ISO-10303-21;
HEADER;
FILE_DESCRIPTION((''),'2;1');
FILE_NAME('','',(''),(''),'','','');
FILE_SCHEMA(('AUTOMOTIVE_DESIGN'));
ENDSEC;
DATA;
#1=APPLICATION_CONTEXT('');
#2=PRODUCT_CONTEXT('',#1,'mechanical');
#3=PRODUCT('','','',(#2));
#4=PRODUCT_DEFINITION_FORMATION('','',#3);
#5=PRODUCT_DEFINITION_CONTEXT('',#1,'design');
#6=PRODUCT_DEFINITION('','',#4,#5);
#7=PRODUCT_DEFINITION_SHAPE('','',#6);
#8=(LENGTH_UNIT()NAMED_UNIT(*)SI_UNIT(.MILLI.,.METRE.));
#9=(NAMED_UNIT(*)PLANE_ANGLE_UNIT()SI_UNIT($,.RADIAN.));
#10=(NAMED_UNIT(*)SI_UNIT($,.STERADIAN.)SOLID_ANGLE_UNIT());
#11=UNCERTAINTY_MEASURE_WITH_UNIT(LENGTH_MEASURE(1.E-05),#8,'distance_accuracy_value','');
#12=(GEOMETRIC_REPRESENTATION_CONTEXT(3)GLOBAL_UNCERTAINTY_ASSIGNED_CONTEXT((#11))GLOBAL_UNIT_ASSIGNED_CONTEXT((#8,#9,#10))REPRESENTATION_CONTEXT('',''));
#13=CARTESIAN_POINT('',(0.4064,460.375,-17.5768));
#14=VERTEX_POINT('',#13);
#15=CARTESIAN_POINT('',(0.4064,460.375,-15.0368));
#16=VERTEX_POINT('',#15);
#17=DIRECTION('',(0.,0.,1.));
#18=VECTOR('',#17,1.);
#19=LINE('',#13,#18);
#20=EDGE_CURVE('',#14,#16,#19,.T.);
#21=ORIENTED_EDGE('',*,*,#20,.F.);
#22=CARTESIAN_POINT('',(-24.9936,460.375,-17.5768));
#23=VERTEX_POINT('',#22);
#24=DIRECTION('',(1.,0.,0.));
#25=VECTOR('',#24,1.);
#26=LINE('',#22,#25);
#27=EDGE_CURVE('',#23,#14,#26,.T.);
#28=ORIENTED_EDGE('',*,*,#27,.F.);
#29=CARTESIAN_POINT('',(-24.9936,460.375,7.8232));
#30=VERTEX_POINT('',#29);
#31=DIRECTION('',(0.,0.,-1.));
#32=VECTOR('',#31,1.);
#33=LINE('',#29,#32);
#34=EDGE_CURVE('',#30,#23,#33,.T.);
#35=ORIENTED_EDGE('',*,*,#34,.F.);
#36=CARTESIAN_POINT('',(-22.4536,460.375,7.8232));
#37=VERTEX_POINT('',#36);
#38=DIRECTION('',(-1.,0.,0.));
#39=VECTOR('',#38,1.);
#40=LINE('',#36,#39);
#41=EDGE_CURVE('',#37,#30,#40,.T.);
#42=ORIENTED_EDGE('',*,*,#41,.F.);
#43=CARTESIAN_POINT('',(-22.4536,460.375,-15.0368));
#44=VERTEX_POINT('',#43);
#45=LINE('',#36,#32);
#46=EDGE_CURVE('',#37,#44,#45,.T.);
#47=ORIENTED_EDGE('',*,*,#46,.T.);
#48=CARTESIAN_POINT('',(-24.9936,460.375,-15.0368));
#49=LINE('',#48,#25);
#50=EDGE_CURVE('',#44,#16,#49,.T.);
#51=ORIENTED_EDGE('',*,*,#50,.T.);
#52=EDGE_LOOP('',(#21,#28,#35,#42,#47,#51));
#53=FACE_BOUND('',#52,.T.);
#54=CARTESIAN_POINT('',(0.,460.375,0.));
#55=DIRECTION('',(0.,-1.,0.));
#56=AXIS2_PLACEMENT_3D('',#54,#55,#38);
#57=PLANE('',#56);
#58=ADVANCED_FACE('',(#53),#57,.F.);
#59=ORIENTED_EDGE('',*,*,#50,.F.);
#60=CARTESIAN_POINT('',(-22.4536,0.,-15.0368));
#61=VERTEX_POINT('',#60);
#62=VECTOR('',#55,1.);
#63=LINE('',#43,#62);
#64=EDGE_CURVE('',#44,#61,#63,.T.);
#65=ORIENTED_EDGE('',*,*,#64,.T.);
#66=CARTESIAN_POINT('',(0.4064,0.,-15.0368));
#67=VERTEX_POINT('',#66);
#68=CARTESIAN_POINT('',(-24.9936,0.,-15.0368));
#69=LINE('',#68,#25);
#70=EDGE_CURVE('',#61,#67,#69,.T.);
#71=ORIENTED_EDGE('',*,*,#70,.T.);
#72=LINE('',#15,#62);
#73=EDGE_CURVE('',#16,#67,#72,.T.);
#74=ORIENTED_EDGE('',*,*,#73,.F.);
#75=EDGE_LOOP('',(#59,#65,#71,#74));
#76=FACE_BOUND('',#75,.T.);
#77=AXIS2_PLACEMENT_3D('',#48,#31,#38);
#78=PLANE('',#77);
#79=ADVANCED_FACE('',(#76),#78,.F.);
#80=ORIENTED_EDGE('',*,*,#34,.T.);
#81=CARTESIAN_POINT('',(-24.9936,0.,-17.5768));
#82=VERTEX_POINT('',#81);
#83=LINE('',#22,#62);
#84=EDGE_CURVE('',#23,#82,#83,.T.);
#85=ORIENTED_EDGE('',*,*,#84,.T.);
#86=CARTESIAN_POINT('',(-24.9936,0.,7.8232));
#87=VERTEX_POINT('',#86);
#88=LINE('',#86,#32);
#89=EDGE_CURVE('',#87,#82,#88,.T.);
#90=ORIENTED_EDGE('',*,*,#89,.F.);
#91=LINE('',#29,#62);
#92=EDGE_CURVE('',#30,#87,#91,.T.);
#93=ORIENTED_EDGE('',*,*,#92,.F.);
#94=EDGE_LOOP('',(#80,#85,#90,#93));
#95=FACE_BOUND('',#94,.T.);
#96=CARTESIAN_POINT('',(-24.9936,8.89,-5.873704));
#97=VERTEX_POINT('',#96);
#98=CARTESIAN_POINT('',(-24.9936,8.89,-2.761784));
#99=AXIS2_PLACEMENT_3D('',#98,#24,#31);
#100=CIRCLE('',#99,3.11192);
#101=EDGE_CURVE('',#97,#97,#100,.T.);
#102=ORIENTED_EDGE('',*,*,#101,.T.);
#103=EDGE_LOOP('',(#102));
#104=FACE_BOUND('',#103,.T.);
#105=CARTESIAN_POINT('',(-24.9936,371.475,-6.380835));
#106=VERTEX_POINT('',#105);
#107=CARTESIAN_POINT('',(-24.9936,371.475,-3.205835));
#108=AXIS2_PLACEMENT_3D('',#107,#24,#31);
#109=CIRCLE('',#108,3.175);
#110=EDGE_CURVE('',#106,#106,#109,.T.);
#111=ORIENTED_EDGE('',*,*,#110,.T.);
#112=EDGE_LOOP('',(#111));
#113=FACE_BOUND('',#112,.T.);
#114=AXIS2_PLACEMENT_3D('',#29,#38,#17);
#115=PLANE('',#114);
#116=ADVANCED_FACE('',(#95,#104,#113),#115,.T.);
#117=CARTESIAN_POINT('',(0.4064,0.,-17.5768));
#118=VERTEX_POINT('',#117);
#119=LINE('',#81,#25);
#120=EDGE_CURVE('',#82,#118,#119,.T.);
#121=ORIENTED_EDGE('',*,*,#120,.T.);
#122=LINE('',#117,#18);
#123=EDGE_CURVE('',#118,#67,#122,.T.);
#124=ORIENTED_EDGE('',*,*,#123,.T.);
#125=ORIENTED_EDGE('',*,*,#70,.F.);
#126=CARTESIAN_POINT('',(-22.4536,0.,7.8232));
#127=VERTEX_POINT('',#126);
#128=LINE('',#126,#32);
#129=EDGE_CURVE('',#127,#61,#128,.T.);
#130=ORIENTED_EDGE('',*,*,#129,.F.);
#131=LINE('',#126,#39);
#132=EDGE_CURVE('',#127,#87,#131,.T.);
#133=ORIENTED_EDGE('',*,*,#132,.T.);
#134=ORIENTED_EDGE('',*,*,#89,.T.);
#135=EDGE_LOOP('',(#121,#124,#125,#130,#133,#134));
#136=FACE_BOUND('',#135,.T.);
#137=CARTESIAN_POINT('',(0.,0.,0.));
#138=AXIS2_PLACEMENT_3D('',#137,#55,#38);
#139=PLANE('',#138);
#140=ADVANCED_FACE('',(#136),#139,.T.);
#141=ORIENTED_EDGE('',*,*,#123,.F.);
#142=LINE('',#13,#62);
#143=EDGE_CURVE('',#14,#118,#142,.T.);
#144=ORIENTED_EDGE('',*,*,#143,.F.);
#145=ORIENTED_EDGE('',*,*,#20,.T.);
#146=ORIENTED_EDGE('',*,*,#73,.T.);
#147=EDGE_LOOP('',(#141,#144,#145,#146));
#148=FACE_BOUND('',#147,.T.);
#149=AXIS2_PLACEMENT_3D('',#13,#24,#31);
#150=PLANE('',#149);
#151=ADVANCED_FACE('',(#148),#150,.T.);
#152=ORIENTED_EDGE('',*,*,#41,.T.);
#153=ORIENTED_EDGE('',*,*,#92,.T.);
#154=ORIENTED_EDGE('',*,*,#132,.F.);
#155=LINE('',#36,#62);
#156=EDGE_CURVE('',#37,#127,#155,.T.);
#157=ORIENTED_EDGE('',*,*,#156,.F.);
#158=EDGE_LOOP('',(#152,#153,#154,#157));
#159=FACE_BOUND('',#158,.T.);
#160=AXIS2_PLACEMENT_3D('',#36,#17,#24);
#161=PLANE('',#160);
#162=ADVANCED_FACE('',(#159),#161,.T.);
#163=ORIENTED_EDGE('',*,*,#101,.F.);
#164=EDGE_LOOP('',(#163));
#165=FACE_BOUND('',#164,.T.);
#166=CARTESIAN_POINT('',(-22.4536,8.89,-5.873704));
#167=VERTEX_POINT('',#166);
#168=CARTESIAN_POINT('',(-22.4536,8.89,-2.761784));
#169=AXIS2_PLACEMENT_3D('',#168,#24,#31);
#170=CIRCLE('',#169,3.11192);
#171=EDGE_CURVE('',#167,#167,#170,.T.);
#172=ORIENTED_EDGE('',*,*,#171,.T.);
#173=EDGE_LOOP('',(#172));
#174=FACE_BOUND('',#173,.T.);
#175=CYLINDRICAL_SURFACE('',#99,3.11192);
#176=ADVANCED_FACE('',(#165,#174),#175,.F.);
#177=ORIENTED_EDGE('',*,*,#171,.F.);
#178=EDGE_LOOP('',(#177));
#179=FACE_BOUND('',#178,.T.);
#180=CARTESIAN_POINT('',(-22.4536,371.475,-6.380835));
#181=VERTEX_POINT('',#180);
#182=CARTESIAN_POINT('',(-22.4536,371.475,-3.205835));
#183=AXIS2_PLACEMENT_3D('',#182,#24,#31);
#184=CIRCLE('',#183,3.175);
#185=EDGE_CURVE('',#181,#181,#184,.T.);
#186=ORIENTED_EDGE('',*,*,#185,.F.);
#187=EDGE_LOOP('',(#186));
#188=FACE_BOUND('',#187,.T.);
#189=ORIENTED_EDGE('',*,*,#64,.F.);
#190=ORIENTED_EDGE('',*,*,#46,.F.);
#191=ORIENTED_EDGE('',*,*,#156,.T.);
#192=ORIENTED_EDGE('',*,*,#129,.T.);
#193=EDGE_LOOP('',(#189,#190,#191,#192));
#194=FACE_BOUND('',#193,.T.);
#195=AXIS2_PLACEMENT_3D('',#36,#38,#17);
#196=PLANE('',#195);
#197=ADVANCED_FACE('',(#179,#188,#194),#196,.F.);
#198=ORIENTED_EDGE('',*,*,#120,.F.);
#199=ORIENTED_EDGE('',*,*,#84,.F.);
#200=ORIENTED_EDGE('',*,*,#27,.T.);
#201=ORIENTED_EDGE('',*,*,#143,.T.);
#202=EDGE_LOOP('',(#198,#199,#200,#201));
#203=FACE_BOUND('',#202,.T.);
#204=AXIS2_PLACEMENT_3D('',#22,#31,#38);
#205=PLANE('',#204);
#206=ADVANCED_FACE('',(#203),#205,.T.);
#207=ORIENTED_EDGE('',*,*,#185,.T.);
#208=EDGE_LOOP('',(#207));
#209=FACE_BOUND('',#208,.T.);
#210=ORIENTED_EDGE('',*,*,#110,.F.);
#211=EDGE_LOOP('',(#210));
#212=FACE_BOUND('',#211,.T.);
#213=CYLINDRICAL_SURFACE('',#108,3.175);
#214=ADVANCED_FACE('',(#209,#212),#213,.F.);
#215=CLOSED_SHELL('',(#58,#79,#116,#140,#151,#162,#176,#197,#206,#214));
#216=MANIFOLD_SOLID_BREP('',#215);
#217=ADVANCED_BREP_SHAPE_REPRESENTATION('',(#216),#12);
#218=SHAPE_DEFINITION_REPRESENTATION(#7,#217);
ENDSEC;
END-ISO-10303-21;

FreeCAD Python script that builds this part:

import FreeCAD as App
import Part
import Sketcher

V = App.Vector
Q = App.Units.Quantity


def add_polygon(sketch, points):
    """Adds a closed chain of lines whose ends are joined by coincident constraints."""
    first, n = sketch.GeometryCount, len(points)
    for a, b in zip(points, points[1:] + points[:1]):
        sketch.addGeometry(Part.LineSegment(App.Vector(*a, 0), App.Vector(*b, 0)), False)
    for i in range(n):
        sketch.addConstraint(Sketcher.Constraint("Coincident", first + i, 2, first + (i + 1) % n, 1))

doc = App.newDocument("Part")
body = doc.addObject("PartDesign::Body", "Body")

# Sketch on XZ plane
sketch1 = body.newObject("Sketcher::SketchObject", "Sketch")
sketch1.AttachmentSupport = (doc.getObject("XZ_Plane"), [""])
sketch1.MapMode = "FlatFace"
add_polygon(sketch1, [(-24.9936, -17.5768), (-24.9936, 7.8232), (-22.4536, 7.8232), (-22.4536, -15.0368), (0.4064, -15.0368), (0.4064, -17.5768)])  # lines 0-5
sketch1.addConstraint(Sketcher.Constraint("Vertical", 0))
sketch1.addConstraint(Sketcher.Constraint("Horizontal", 1))
sketch1.addConstraint(Sketcher.Constraint("Vertical", 2))
sketch1.addConstraint(Sketcher.Constraint("Horizontal", 3))
sketch1.addConstraint(Sketcher.Constraint("Vertical", 4))
sketch1.addConstraint(Sketcher.Constraint("Horizontal", 5))
sketch1.addConstraint(Sketcher.Constraint("Equal", 5, 0))
sketch1.addConstraint(Sketcher.Constraint("Equal", 3, 2))
sketch1.addConstraint(Sketcher.Constraint("DistanceX", 5, 2, 5, 1, Q("1 in")))
sketch1.addConstraint(Sketcher.Constraint("DistanceX", 1, 1, 1, 2, Q("0.1 in")))
sketch1.addConstraint(Sketcher.Constraint("DistanceX", 0, 2, -1, 1, Q("0.984 in")))
sketch1.addConstraint(Sketcher.Constraint("DistanceY", -1, 1, 0, 2, Q("0.308 in")))
pad1 = body.newObject("PartDesign::Pad", "Pad")
pad1.Profile = sketch1
pad1.Length = Q("18.125 in")
pad1.Reversed = True

# Sketch on YZ plane
sketch2 = body.newObject("Sketcher::SketchObject", "Sketch001")
sketch2.AttachmentSupport = (doc.getObject("YZ_Plane"), [""])
sketch2.MapMode = "FlatFace"
sketch2.AttachmentOffset = App.Placement(V(0, 0, -0.884 * 25.4), App.Rotation())
sketch2.addGeometry(Part.Circle(V(371.475, -3.205835, 0), V(0, 0, 1), 3.175), False)
sketch2.addConstraint(Sketcher.Constraint("Diameter", 0, Q("0.25 in")))
sketch2.addConstraint(Sketcher.Constraint("DistanceX", -1, 1, 0, 3, Q("14.625 in")))
sketch2.addConstraint(Sketcher.Constraint("DistanceY", 0, 3, -1, 1, 3.205835))
pocket1 = body.newObject("PartDesign::Pocket", "Pocket")
pocket1.Profile = sketch2
pocket1.Type = "ThroughAll"

# Sketch on YZ plane
sketch3 = body.newObject("Sketcher::SketchObject", "Sketch002")
sketch3.AttachmentSupport = (doc.getObject("YZ_Plane"), [""])
sketch3.MapMode = "FlatFace"
sketch3.AttachmentOffset = App.Placement(V(0, 0, -0.884 * 25.4), App.Rotation())
sketch3.addGeometry(Part.Circle(V(8.89, -2.761784, 0), V(0, 0, 1), 3.11192), False)
sketch3.addConstraint(Sketcher.Constraint("DistanceX", -1, 1, 0, 3, Q("0.35 in")))
sketch3.addConstraint(Sketcher.Constraint("Diameter", 0, 6.223839))
sketch3.addConstraint(Sketcher.Constraint("DistanceY", 0, 3, -1, 1, 2.761784))
pocket2 = body.newObject("PartDesign::Pocket", "Pocket001")
pocket2.Profile = sketch3
pocket2.Type = "ThroughAll"

doc.recompute()
